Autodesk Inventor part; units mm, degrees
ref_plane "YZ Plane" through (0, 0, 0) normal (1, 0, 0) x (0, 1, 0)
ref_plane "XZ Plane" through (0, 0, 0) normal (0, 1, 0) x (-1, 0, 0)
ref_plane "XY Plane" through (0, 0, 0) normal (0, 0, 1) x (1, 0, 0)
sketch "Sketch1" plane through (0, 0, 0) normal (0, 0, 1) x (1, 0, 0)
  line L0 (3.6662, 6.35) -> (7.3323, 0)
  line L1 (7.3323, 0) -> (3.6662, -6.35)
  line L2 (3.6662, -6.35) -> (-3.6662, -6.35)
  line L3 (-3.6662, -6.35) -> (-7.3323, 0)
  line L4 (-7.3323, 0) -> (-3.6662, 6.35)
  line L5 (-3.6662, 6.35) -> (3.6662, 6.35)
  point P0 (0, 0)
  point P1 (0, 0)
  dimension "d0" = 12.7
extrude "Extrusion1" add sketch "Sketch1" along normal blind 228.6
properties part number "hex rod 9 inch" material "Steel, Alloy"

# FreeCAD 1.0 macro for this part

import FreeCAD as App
import Part
import Sketcher
from FreeCAD import Vector
Q = App.Units.Quantity

doc = App.newDocument("Part")
body = doc.addObject("PartDesign::Body", "Body")

sketch1 = doc.addObject("Sketcher::SketchObject", "Sketch")
body.addObject(sketch1)
sketch1.AttachmentSupport = (doc.XY_Plane, [""])
sketch1.MapMode = "FlatFace"
sketch1.addGeometry(Part.LineSegment(Vector(7.3323, 0, 0), Vector(3.6662, 6.35, 0)), False)
sketch1.addGeometry(Part.LineSegment(Vector(3.6662, 6.35, 0), Vector(-3.6662, 6.35, 0)), False)
sketch1.addGeometry(Part.LineSegment(Vector(-3.6662, 6.35, 0), Vector(-7.3323, 0, 0)), False)
sketch1.addGeometry(Part.LineSegment(Vector(-7.3323, 0, 0), Vector(-3.6662, -6.35, 0)), False)
sketch1.addGeometry(Part.LineSegment(Vector(-3.6662, -6.35, 0), Vector(3.6662, -6.35, 0)), False)
sketch1.addGeometry(Part.LineSegment(Vector(3.6662, -6.35, 0), Vector(7.3323, 0, 0)), False)
sketch1.addConstraint(Sketcher.Constraint("Coincident", 0, 2, 1, 1))
sketch1.addConstraint(Sketcher.Constraint("Coincident", 1, 2, 2, 1))
sketch1.addConstraint(Sketcher.Constraint("Coincident", 2, 2, 3, 1))
sketch1.addConstraint(Sketcher.Constraint("Coincident", 3, 2, 4, 1))
sketch1.addConstraint(Sketcher.Constraint("Coincident", 4, 2, 5, 1))
sketch1.addConstraint(Sketcher.Constraint("Coincident", 5, 2, 0, 1))
sketch1.addConstraint(Sketcher.Constraint("Horizontal", 1))
sketch1.addConstraint(Sketcher.Constraint("Horizontal", 4))
sketch1.addConstraint(Sketcher.Constraint("Symmetric", 0, 2, 3, 2, -1, 1))
sketch1.addConstraint(Sketcher.Constraint("Symmetric", 2, 2, 5, 2, -1, 1))
sketch1.addConstraint(Sketcher.Constraint("PointOnObject", 2, 2, -1))
sketch1.addConstraint(Sketcher.Constraint("Parallel", 2, 5))
sketch1.addConstraint(Sketcher.Constraint("Vertical", 1, 2, 3, 2))
sketch1.addConstraint(Sketcher.Constraint("DistanceY", 3, 2, 1, 2, Q("0.5 in")))
sketch1.addConstraint(Sketcher.Constraint("Angle", 0, Q("119.9995 deg")))
sketch1.addConstraint(Sketcher.Constraint("DistanceX", 2, 2, 0, 2, Q("0.433 in")))
pad1 = doc.addObject("PartDesign::Pad", "Pad")
body.addObject(pad1)
pad1.Profile = sketch1
pad1.Length = Q("9 in")

doc.recompute()
